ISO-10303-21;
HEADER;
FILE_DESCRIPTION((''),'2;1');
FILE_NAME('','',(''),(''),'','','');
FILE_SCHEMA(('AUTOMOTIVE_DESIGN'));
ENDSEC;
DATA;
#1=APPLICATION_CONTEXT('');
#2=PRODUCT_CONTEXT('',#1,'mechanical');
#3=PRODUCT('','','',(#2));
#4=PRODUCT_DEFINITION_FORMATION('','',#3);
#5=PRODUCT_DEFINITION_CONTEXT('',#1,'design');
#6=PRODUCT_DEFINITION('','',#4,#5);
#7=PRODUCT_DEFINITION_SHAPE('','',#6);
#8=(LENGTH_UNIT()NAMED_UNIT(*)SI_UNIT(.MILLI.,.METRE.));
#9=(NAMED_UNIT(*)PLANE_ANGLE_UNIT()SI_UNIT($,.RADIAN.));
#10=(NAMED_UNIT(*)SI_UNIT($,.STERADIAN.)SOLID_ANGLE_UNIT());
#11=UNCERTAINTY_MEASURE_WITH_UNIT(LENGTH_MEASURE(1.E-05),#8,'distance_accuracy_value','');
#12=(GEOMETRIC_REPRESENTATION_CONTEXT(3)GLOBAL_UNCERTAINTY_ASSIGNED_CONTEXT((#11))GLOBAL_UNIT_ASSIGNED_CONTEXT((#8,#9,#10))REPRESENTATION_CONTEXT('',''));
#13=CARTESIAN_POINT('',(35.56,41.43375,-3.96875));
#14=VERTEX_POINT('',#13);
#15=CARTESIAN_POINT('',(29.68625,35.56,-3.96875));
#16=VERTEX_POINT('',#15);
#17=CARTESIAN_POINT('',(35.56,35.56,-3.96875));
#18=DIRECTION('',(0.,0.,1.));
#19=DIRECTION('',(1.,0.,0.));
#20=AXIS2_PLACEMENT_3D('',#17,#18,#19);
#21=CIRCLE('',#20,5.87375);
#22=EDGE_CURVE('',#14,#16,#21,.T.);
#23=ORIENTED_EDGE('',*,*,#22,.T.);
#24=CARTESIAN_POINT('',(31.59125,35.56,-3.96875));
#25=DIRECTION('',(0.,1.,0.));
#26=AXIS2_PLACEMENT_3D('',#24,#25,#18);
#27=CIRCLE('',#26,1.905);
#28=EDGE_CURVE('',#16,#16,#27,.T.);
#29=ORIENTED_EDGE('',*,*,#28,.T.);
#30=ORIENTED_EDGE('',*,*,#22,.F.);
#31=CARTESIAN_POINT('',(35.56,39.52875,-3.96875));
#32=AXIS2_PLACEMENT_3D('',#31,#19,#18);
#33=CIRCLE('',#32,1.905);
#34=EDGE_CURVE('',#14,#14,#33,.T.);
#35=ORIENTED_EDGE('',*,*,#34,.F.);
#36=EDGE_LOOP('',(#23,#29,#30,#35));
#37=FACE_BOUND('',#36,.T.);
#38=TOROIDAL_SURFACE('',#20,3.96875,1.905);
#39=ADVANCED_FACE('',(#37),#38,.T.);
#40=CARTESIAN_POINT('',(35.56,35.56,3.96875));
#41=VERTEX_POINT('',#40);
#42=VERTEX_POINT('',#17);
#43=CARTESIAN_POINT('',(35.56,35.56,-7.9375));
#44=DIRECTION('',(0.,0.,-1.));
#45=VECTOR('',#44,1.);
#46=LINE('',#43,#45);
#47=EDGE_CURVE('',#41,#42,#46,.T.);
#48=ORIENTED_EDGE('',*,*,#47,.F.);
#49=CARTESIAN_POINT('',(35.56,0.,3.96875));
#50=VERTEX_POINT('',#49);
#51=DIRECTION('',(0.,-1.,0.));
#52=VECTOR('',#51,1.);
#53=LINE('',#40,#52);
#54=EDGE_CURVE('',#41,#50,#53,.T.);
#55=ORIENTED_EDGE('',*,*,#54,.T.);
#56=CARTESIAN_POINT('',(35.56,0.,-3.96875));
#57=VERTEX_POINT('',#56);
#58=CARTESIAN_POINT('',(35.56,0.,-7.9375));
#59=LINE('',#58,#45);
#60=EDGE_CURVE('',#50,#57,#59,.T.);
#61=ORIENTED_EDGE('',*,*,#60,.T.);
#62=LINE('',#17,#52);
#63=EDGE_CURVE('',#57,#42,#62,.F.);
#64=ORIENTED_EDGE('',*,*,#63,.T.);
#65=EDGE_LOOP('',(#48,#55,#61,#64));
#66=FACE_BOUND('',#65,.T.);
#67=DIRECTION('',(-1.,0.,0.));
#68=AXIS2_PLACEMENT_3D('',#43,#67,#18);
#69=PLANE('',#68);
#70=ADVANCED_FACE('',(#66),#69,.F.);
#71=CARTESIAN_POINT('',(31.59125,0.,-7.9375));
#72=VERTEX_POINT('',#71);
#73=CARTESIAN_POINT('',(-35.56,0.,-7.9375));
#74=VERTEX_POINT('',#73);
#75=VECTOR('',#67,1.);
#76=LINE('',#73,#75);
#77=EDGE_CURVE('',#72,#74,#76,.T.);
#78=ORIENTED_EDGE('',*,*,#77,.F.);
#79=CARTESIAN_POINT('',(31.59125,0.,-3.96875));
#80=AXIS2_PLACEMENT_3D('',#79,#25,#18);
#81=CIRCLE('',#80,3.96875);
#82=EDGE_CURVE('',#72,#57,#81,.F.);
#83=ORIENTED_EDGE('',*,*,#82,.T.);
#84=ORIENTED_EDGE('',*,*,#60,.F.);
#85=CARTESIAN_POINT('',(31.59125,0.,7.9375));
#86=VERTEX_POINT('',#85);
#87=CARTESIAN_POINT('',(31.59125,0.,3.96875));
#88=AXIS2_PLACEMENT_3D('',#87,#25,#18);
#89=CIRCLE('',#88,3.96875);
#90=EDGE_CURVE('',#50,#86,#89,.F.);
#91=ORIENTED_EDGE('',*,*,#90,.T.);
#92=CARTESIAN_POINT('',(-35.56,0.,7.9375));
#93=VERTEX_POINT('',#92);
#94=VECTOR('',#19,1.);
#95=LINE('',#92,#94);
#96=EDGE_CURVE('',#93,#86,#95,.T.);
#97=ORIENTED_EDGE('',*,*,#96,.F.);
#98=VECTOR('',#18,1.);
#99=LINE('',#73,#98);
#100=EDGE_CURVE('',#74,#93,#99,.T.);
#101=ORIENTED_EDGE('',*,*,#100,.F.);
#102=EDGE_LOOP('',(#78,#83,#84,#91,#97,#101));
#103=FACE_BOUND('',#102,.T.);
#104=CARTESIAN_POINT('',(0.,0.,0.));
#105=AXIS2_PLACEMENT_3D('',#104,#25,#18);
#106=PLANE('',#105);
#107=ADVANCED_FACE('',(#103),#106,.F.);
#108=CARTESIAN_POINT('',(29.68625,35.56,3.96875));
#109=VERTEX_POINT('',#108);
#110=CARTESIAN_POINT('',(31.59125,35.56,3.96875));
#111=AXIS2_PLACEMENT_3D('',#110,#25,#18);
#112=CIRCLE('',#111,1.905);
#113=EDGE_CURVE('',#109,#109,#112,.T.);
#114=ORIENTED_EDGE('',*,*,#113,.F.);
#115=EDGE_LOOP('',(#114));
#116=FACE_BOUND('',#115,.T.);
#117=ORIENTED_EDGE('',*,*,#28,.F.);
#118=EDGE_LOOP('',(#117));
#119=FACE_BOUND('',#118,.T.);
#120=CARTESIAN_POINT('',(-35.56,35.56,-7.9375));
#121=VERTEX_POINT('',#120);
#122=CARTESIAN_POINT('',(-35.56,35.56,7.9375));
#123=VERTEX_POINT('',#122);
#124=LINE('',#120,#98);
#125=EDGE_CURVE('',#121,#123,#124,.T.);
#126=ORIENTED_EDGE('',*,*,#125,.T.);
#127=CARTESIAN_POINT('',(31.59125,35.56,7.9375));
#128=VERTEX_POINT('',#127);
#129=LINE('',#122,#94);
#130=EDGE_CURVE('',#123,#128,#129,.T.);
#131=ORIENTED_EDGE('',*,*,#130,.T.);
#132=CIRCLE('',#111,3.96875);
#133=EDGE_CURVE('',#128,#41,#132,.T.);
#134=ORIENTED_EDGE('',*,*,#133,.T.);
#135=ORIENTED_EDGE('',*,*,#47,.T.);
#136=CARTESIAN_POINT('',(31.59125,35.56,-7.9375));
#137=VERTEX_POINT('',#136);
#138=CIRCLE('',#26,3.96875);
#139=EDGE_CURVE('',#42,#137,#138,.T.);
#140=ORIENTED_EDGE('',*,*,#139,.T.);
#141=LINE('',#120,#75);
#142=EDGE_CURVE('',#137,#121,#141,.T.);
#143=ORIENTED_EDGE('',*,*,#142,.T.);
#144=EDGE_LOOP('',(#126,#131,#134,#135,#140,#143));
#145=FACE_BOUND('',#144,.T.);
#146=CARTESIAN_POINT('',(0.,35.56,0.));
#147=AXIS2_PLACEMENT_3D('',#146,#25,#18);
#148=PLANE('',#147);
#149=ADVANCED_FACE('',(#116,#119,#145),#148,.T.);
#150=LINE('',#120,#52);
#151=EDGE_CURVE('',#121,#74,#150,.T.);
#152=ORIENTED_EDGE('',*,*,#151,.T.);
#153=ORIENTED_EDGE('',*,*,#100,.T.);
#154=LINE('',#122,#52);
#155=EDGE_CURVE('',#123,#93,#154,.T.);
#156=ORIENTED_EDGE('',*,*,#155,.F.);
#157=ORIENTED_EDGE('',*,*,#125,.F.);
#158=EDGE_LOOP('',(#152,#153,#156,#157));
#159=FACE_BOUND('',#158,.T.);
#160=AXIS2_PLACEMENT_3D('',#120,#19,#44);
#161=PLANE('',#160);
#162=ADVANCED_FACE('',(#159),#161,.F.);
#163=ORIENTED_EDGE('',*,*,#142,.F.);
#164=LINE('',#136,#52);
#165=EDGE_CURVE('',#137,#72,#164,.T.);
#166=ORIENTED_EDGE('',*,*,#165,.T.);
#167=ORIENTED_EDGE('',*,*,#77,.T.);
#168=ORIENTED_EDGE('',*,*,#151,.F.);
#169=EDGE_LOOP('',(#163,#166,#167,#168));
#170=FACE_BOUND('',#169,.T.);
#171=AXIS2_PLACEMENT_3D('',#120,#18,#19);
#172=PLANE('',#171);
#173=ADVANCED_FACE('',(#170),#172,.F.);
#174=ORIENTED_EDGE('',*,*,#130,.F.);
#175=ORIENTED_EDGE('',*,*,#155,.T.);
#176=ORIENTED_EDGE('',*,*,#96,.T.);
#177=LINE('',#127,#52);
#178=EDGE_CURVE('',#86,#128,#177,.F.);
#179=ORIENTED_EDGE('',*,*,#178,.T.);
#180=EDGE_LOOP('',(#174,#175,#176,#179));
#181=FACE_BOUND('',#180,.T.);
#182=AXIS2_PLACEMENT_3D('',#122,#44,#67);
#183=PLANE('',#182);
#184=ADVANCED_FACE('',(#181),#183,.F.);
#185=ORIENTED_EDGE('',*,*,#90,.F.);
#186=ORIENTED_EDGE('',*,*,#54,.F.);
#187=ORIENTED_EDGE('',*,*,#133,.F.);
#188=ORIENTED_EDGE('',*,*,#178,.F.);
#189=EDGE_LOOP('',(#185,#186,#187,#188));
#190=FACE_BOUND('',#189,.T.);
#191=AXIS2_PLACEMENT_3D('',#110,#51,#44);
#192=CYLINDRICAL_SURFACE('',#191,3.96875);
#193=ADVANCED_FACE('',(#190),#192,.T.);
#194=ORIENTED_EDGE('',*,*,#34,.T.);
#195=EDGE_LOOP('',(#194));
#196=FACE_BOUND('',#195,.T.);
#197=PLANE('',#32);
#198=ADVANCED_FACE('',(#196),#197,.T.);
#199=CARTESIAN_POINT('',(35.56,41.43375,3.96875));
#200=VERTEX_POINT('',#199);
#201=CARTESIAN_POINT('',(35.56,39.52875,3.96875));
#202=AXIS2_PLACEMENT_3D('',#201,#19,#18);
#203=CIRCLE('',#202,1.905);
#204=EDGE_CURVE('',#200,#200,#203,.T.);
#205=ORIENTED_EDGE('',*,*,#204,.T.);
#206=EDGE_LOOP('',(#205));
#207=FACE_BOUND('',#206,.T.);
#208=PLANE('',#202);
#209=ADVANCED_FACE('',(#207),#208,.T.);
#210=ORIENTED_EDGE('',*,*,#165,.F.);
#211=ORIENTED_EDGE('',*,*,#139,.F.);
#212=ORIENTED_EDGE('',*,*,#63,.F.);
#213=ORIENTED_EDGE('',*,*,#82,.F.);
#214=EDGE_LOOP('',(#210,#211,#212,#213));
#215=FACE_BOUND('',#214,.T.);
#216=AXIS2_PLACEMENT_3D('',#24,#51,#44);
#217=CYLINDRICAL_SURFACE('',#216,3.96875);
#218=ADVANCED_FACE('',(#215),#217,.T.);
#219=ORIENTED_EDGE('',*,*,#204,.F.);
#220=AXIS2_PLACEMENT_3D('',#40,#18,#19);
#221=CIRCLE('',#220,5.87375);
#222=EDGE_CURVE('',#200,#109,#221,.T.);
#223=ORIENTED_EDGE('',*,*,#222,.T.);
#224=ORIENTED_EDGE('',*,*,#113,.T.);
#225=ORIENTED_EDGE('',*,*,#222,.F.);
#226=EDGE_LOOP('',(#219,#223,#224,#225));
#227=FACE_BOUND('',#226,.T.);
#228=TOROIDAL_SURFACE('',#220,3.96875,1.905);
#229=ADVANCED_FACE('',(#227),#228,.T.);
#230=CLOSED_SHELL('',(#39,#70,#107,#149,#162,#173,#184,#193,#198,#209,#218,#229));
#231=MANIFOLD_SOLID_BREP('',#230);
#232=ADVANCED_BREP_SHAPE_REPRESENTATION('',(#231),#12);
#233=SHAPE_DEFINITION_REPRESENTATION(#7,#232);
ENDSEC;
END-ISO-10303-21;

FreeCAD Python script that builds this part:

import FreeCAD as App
import Part
import Sketcher
Q = App.Units.Quantity


def edges_at(feature, points):
    """Names of the edges that pass closest to the given points."""
    edges = feature.Shape.Edges
    near = lambda p: min(range(len(edges)), key=lambda i: edges[i].distToShape(Part.Vertex(*p))[0])
    return sorted({f"Edge{near(p) + 1}" for p in points})

doc = App.newDocument("Part")
body = doc.addObject("PartDesign::Body", "Body")

# Sketch on XZ plane
sketch1 = body.newObject("Sketcher::SketchObject", "Sketch")
sketch1.AttachmentSupport = (doc.getObject("XZ_Plane"), [""])
sketch1.MapMode = "FlatFace"
sketch1.addGeometry([
    Part.LineSegment(App.Vector(-36, -8, 0), App.Vector(-36, 8, 0)),
    Part.LineSegment(App.Vector(-36, 8, 0), App.Vector(36, 8, 0)),
    Part.LineSegment(App.Vector(36, 8, 0), App.Vector(36, -8, 0)),
    Part.LineSegment(App.Vector(36, -8, 0), App.Vector(-36, -8, 0)),
], False)
sketch1.addConstraint([
    Sketcher.Constraint("Coincident", 0, 2, 1, 1),
    Sketcher.Constraint("Coincident", 1, 2, 2, 1),
    Sketcher.Constraint("Coincident", 2, 2, 3, 1),
    Sketcher.Constraint("Coincident", 3, 2, 0, 1),
    Sketcher.Constraint("Vertical", 0),
    Sketcher.Constraint("Horizontal", 1),
    Sketcher.Constraint("Vertical", 2),
    Sketcher.Constraint("Horizontal", 3),
    Sketcher.Constraint("Symmetric", 0, 2, 2, 2, -1, 1),
    Sketcher.Constraint("DistanceX", 1, 1, 1, 2, Q("2.8 in")),
    Sketcher.Constraint("DistanceY", 0, 1, 0, 2, Q("0.625 in")),
])
pad1 = body.newObject("PartDesign::Pad", "Pad")
pad1.Profile = sketch1
pad1.Length = Q("1.4 in")
pad1.Reversed = True
doc.recompute()

fillet = body.newObject("PartDesign::Fillet", "Fillet")
fillet.Base = (pad1, edges_at(pad1, [(35.56, 17.78, 7.938), (35.56, 17.78, -7.938)]))
fillet.Radius = Q("0.15625 in")

# Sketch on XZ plane
sketch2 = body.newObject("Sketcher::SketchObject", "Sketch001")
sketch2.AttachmentSupport = (doc.getObject("XZ_Plane"), [""])
sketch2.MapMode = "FlatFace"
sketch2.AttachmentOffset = App.Placement(App.Vector(0, 0, -1.4 * 25.4), App.Rotation())
sketch2.addGeometry([
    Part.Circle(App.Vector(31.6, 4, 0), App.Vector(0, 0, 1), 1.9),
    Part.Circle(App.Vector(31.6, -4, 0), App.Vector(0, 0, 1), 1.9),
], False)
sketch2.addGeometry(Part.LineSegment(App.Vector(35.6, 4, 0), App.Vector(35.6, -4, 0)), True)  # axis
sketch2.addConstraint([
    Sketcher.Constraint("Vertical", 2),
    Sketcher.Constraint("Equal", 0, 1),
    Sketcher.Constraint("Symmetric", 0, 3, 1, 3, -1),
    Sketcher.Constraint("Horizontal", 0, 3, 2, 1),
    Sketcher.Constraint("Horizontal", 1, 3, 2, 2),
    Sketcher.Constraint("Diameter", 0, Q("0.15 in")),
    Sketcher.Constraint("DistanceX", -1, 1, 2, 1, Q("1.4 in")),
    Sketcher.Constraint("DistanceY", 2, 2, 2, 1, Q("0.3125 in")),
    Sketcher.Constraint("DistanceX", 0, 3, 2, 1, Q("0.15625 in")),
])
revolution = body.newObject("PartDesign::Revolution", "Revolution")
revolution.Profile = sketch2
revolution.ReferenceAxis = (sketch2, ["Axis0"])
revolution.Angle = 90

doc.recompute()
